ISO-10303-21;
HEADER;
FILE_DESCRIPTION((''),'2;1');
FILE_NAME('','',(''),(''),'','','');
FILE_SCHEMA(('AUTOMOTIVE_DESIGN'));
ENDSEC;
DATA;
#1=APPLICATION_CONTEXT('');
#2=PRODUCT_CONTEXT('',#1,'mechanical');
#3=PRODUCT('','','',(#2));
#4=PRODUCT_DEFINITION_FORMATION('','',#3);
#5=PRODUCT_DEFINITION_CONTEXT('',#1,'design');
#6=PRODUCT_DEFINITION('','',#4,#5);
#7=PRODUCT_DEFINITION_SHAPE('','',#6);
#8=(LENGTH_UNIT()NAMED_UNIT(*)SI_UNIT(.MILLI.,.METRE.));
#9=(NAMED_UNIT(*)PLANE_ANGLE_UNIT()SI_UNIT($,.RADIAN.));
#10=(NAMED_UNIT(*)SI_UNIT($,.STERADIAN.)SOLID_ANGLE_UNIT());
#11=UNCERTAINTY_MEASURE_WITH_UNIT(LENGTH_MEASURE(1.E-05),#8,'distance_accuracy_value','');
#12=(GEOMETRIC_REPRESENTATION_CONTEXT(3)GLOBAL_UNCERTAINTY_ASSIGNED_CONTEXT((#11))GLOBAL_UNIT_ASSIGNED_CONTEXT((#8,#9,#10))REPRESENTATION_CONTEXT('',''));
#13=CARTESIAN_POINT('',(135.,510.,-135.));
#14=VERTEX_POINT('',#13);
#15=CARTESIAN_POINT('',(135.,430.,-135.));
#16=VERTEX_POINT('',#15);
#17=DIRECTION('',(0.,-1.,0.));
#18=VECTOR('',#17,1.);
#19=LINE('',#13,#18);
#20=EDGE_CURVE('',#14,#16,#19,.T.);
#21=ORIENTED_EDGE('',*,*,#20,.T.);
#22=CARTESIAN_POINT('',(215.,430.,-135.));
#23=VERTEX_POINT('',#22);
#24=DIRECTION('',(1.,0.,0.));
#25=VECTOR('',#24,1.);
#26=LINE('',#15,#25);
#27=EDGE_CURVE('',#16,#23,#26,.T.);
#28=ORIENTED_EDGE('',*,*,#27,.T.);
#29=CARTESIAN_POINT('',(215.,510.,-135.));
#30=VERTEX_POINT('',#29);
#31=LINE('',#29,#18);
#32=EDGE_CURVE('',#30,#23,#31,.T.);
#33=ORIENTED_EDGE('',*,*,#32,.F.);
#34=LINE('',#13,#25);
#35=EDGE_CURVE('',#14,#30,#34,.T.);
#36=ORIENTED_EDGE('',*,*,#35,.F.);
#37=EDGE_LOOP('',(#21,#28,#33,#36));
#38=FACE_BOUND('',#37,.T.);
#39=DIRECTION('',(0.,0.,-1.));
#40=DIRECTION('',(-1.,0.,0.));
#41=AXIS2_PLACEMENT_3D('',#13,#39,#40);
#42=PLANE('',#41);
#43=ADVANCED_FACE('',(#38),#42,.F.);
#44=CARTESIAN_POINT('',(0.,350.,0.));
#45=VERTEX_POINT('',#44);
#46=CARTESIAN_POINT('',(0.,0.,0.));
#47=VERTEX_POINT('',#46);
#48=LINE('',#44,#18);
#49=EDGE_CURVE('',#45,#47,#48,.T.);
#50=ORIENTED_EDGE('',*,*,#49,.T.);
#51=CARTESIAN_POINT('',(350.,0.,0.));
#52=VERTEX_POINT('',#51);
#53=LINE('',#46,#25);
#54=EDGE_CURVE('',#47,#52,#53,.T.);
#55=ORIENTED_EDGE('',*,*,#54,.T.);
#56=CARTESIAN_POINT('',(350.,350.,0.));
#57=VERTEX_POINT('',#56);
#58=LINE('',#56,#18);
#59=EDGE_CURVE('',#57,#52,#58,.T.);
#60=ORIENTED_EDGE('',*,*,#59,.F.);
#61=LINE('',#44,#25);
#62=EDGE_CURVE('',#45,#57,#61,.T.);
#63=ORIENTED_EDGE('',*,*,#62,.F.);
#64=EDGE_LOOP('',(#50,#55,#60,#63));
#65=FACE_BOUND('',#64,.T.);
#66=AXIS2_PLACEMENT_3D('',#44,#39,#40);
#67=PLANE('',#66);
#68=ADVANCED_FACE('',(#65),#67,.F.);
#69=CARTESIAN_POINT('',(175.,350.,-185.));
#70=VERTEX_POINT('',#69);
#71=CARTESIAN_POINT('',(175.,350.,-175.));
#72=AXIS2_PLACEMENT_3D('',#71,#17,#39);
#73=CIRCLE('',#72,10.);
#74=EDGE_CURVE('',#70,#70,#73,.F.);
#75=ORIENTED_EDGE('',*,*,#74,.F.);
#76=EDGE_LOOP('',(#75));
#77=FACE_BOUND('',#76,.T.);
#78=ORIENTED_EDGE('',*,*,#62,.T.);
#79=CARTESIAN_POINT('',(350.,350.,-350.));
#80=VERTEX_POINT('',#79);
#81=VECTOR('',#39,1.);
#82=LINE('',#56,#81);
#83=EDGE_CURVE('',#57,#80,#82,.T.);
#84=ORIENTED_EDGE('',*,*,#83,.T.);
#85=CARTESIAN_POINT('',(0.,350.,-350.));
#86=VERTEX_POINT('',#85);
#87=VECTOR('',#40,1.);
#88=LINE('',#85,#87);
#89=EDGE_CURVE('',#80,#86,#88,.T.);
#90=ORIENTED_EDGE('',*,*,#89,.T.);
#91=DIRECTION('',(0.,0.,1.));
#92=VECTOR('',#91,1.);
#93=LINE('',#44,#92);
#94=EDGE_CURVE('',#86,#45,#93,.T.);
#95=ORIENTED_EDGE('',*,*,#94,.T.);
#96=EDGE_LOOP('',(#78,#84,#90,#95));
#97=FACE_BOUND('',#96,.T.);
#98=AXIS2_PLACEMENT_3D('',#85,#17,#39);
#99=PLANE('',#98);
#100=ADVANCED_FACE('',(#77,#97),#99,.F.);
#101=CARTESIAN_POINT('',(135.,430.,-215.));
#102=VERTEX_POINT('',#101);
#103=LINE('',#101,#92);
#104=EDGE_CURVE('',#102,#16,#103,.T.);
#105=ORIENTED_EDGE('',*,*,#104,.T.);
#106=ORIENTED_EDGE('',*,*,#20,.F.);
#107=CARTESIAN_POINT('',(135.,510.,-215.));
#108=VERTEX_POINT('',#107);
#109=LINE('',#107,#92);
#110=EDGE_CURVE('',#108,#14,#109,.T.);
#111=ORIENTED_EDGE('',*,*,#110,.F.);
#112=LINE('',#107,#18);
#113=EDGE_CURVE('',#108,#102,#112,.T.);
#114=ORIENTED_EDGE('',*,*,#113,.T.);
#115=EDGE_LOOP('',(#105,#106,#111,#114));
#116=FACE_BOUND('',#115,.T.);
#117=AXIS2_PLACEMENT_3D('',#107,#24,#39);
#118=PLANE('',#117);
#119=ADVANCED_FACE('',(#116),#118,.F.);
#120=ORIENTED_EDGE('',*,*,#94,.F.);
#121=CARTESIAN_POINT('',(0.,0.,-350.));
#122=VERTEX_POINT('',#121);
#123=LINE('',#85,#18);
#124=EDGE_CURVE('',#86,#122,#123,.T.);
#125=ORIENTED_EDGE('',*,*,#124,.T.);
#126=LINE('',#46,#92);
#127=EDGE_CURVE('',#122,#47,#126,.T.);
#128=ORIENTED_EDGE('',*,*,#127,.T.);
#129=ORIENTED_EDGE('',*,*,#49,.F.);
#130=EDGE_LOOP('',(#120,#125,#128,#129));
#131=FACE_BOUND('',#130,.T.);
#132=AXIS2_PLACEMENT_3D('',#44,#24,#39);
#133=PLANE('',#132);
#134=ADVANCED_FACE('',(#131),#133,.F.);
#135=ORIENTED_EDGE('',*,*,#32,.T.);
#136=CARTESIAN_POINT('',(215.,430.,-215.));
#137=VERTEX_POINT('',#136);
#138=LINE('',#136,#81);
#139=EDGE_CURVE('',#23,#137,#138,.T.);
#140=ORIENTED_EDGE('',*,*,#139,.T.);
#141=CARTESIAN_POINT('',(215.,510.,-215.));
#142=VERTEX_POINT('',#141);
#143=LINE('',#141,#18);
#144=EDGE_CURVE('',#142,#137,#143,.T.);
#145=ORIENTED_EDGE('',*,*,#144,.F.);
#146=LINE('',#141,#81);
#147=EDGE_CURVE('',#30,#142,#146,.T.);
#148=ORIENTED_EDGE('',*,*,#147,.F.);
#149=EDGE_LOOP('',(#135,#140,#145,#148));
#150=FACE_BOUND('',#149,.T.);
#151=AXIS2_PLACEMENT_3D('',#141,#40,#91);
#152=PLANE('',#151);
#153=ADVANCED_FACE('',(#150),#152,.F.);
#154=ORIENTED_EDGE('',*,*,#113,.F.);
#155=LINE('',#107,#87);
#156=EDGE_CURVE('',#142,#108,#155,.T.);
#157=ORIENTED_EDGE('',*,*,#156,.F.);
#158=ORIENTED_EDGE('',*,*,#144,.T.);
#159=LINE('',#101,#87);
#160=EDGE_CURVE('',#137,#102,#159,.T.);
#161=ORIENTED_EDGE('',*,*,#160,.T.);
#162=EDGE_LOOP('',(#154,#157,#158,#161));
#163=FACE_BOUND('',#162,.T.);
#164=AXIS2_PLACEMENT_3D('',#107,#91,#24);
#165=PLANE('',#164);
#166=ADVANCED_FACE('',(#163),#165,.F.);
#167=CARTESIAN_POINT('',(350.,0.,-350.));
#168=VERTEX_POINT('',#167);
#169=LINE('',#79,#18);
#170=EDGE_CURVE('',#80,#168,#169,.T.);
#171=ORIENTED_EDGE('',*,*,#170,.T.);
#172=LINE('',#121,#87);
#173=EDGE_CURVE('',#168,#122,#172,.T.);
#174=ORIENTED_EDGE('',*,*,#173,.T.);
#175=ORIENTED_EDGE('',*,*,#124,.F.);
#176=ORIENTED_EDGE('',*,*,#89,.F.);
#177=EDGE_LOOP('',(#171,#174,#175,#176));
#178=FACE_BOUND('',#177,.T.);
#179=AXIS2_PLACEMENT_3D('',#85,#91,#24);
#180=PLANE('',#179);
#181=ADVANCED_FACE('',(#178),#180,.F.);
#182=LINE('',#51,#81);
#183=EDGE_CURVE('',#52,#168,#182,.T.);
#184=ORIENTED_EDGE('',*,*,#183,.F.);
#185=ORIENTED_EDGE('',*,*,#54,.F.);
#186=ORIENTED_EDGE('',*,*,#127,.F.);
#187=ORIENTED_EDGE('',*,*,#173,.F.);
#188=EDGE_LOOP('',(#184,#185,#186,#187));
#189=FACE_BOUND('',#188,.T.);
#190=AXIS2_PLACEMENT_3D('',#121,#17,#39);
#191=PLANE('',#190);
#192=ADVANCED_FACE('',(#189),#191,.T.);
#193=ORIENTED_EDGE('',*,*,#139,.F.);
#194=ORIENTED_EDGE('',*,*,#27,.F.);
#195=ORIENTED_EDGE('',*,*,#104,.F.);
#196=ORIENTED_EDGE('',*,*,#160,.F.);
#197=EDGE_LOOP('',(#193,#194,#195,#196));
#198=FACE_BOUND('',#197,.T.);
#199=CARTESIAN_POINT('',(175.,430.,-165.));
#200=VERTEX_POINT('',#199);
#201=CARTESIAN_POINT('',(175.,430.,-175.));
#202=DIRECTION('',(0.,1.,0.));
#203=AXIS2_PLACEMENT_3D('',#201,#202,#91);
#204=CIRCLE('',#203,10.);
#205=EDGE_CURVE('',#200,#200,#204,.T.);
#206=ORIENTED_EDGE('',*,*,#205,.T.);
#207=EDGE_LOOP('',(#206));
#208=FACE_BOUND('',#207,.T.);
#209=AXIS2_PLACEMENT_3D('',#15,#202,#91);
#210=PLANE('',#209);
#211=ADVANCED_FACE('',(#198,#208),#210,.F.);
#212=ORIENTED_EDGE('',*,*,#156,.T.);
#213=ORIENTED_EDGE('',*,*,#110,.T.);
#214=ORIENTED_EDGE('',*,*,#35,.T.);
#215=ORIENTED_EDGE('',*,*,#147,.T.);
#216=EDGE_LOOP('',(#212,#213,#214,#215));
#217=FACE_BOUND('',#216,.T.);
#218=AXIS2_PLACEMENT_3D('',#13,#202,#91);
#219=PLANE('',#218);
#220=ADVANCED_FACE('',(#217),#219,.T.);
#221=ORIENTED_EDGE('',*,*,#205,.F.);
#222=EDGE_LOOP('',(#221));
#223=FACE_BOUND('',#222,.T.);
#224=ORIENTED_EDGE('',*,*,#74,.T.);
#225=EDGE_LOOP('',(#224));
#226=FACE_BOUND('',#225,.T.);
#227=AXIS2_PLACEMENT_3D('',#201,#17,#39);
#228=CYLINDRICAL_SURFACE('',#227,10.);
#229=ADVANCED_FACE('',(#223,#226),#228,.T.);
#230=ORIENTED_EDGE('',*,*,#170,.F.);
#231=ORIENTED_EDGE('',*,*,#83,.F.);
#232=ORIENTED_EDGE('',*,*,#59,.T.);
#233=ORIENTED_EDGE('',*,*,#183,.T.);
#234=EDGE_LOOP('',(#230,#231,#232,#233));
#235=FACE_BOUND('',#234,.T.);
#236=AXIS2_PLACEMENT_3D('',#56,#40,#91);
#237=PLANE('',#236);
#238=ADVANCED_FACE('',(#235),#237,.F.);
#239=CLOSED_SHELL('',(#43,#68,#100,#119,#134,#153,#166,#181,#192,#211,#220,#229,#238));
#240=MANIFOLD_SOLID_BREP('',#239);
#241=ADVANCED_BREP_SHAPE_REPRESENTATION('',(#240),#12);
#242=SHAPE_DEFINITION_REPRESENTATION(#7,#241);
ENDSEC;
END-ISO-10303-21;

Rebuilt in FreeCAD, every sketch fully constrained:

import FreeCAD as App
import Part
import Sketcher

V = App.Vector


def add_polygon(sketch, points):
    """Adds a closed chain of lines whose ends are joined by coincident constraints."""
    first, n = sketch.GeometryCount, len(points)
    for a, b in zip(points, points[1:] + points[:1]):
        sketch.addGeometry(Part.LineSegment(App.Vector(*a, 0), App.Vector(*b, 0)), False)
    for i in range(n):
        sketch.addConstraint(Sketcher.Constraint("Coincident", first + i, 2, first + (i + 1) % n, 1))

doc = App.newDocument("Part")
body = doc.addObject("PartDesign::Body", "Body")

sketch1 = body.newObject("Sketcher::SketchObject", "Sketch")
sketch1.AttachmentSupport = (doc.getObject("XZ_Plane"), [""])
sketch1.MapMode = "FlatFace"
add_polygon(sketch1, [(0, -350), (0, 0), (350, 0), (350, -350)])
sketch1.addConstraint(Sketcher.Constraint("Vertical", 0))
sketch1.addConstraint(Sketcher.Constraint("Horizontal", 1))
sketch1.addConstraint(Sketcher.Constraint("Vertical", 2))
sketch1.addConstraint(Sketcher.Constraint("Horizontal", 3))
sketch1.addConstraint(Sketcher.Constraint("Coincident", 0, 2, -1, 1))
sketch1.addConstraint(Sketcher.Constraint("Equal", 3, 0))
sketch1.addConstraint(Sketcher.Constraint("DistanceX", 1, 1, 1, 2, 350.0))
pad1 = body.newObject("PartDesign::Pad", "Pad")
pad1.Profile = sketch1
pad1.Length = 350
pad1.Reversed = True

sketch2 = body.newObject("Sketcher::SketchObject", "Sketch001")
sketch2.AttachmentSupport = (doc.getObject("XZ_Plane"), [""])
sketch2.MapMode = "FlatFace"
sketch2.AttachmentOffset = App.Placement(V(0, 0, -350), App.Rotation())
sketch2.addGeometry(Part.Circle(V(175, -175, 0), V(0, 0, 1), 10), False)
sketch2.addConstraint(Sketcher.Constraint("Diameter", 0, 20.0))
sketch2.addConstraint(Sketcher.Constraint("DistanceX", -1, 1, 0, 3, 175.0))
sketch2.addConstraint(Sketcher.Constraint("DistanceY", 0, 3, -1, 1, 175.0))
pad2 = body.newObject("PartDesign::Pad", "Pad001")
pad2.Profile = sketch2
pad2.Length = 80
pad2.Reversed = True

sketch3 = body.newObject("Sketcher::SketchObject", "Sketch002")
sketch3.AttachmentSupport = (doc.getObject("XZ_Plane"), [""])
sketch3.MapMode = "FlatFace"
sketch3.AttachmentOffset = App.Placement(V(0, 0, -430), App.Rotation())
add_polygon(sketch3, [(135, -215), (135, -135), (215, -135), (215, -215)])
sketch3.addConstraint(Sketcher.Constraint("Vertical", 0))
sketch3.addConstraint(Sketcher.Constraint("Horizontal", 1))
sketch3.addConstraint(Sketcher.Constraint("Vertical", 2))
sketch3.addConstraint(Sketcher.Constraint("Horizontal", 3))
sketch3.addConstraint(Sketcher.Constraint("Equal", 3, 0))
sketch3.addConstraint(Sketcher.Constraint("DistanceX", 1, 1, 1, 2, 80.0))
sketch3.addConstraint(Sketcher.Constraint("DistanceX", -1, 1, 0, 2, 135.0))
sketch3.addConstraint(Sketcher.Constraint("DistanceY", 0, 2, -1, 1, 135.0))
pad3 = body.newObject("PartDesign::Pad", "Pad002")
pad3.Profile = sketch3
pad3.Length = 80
pad3.Reversed = True

doc.recompute()
